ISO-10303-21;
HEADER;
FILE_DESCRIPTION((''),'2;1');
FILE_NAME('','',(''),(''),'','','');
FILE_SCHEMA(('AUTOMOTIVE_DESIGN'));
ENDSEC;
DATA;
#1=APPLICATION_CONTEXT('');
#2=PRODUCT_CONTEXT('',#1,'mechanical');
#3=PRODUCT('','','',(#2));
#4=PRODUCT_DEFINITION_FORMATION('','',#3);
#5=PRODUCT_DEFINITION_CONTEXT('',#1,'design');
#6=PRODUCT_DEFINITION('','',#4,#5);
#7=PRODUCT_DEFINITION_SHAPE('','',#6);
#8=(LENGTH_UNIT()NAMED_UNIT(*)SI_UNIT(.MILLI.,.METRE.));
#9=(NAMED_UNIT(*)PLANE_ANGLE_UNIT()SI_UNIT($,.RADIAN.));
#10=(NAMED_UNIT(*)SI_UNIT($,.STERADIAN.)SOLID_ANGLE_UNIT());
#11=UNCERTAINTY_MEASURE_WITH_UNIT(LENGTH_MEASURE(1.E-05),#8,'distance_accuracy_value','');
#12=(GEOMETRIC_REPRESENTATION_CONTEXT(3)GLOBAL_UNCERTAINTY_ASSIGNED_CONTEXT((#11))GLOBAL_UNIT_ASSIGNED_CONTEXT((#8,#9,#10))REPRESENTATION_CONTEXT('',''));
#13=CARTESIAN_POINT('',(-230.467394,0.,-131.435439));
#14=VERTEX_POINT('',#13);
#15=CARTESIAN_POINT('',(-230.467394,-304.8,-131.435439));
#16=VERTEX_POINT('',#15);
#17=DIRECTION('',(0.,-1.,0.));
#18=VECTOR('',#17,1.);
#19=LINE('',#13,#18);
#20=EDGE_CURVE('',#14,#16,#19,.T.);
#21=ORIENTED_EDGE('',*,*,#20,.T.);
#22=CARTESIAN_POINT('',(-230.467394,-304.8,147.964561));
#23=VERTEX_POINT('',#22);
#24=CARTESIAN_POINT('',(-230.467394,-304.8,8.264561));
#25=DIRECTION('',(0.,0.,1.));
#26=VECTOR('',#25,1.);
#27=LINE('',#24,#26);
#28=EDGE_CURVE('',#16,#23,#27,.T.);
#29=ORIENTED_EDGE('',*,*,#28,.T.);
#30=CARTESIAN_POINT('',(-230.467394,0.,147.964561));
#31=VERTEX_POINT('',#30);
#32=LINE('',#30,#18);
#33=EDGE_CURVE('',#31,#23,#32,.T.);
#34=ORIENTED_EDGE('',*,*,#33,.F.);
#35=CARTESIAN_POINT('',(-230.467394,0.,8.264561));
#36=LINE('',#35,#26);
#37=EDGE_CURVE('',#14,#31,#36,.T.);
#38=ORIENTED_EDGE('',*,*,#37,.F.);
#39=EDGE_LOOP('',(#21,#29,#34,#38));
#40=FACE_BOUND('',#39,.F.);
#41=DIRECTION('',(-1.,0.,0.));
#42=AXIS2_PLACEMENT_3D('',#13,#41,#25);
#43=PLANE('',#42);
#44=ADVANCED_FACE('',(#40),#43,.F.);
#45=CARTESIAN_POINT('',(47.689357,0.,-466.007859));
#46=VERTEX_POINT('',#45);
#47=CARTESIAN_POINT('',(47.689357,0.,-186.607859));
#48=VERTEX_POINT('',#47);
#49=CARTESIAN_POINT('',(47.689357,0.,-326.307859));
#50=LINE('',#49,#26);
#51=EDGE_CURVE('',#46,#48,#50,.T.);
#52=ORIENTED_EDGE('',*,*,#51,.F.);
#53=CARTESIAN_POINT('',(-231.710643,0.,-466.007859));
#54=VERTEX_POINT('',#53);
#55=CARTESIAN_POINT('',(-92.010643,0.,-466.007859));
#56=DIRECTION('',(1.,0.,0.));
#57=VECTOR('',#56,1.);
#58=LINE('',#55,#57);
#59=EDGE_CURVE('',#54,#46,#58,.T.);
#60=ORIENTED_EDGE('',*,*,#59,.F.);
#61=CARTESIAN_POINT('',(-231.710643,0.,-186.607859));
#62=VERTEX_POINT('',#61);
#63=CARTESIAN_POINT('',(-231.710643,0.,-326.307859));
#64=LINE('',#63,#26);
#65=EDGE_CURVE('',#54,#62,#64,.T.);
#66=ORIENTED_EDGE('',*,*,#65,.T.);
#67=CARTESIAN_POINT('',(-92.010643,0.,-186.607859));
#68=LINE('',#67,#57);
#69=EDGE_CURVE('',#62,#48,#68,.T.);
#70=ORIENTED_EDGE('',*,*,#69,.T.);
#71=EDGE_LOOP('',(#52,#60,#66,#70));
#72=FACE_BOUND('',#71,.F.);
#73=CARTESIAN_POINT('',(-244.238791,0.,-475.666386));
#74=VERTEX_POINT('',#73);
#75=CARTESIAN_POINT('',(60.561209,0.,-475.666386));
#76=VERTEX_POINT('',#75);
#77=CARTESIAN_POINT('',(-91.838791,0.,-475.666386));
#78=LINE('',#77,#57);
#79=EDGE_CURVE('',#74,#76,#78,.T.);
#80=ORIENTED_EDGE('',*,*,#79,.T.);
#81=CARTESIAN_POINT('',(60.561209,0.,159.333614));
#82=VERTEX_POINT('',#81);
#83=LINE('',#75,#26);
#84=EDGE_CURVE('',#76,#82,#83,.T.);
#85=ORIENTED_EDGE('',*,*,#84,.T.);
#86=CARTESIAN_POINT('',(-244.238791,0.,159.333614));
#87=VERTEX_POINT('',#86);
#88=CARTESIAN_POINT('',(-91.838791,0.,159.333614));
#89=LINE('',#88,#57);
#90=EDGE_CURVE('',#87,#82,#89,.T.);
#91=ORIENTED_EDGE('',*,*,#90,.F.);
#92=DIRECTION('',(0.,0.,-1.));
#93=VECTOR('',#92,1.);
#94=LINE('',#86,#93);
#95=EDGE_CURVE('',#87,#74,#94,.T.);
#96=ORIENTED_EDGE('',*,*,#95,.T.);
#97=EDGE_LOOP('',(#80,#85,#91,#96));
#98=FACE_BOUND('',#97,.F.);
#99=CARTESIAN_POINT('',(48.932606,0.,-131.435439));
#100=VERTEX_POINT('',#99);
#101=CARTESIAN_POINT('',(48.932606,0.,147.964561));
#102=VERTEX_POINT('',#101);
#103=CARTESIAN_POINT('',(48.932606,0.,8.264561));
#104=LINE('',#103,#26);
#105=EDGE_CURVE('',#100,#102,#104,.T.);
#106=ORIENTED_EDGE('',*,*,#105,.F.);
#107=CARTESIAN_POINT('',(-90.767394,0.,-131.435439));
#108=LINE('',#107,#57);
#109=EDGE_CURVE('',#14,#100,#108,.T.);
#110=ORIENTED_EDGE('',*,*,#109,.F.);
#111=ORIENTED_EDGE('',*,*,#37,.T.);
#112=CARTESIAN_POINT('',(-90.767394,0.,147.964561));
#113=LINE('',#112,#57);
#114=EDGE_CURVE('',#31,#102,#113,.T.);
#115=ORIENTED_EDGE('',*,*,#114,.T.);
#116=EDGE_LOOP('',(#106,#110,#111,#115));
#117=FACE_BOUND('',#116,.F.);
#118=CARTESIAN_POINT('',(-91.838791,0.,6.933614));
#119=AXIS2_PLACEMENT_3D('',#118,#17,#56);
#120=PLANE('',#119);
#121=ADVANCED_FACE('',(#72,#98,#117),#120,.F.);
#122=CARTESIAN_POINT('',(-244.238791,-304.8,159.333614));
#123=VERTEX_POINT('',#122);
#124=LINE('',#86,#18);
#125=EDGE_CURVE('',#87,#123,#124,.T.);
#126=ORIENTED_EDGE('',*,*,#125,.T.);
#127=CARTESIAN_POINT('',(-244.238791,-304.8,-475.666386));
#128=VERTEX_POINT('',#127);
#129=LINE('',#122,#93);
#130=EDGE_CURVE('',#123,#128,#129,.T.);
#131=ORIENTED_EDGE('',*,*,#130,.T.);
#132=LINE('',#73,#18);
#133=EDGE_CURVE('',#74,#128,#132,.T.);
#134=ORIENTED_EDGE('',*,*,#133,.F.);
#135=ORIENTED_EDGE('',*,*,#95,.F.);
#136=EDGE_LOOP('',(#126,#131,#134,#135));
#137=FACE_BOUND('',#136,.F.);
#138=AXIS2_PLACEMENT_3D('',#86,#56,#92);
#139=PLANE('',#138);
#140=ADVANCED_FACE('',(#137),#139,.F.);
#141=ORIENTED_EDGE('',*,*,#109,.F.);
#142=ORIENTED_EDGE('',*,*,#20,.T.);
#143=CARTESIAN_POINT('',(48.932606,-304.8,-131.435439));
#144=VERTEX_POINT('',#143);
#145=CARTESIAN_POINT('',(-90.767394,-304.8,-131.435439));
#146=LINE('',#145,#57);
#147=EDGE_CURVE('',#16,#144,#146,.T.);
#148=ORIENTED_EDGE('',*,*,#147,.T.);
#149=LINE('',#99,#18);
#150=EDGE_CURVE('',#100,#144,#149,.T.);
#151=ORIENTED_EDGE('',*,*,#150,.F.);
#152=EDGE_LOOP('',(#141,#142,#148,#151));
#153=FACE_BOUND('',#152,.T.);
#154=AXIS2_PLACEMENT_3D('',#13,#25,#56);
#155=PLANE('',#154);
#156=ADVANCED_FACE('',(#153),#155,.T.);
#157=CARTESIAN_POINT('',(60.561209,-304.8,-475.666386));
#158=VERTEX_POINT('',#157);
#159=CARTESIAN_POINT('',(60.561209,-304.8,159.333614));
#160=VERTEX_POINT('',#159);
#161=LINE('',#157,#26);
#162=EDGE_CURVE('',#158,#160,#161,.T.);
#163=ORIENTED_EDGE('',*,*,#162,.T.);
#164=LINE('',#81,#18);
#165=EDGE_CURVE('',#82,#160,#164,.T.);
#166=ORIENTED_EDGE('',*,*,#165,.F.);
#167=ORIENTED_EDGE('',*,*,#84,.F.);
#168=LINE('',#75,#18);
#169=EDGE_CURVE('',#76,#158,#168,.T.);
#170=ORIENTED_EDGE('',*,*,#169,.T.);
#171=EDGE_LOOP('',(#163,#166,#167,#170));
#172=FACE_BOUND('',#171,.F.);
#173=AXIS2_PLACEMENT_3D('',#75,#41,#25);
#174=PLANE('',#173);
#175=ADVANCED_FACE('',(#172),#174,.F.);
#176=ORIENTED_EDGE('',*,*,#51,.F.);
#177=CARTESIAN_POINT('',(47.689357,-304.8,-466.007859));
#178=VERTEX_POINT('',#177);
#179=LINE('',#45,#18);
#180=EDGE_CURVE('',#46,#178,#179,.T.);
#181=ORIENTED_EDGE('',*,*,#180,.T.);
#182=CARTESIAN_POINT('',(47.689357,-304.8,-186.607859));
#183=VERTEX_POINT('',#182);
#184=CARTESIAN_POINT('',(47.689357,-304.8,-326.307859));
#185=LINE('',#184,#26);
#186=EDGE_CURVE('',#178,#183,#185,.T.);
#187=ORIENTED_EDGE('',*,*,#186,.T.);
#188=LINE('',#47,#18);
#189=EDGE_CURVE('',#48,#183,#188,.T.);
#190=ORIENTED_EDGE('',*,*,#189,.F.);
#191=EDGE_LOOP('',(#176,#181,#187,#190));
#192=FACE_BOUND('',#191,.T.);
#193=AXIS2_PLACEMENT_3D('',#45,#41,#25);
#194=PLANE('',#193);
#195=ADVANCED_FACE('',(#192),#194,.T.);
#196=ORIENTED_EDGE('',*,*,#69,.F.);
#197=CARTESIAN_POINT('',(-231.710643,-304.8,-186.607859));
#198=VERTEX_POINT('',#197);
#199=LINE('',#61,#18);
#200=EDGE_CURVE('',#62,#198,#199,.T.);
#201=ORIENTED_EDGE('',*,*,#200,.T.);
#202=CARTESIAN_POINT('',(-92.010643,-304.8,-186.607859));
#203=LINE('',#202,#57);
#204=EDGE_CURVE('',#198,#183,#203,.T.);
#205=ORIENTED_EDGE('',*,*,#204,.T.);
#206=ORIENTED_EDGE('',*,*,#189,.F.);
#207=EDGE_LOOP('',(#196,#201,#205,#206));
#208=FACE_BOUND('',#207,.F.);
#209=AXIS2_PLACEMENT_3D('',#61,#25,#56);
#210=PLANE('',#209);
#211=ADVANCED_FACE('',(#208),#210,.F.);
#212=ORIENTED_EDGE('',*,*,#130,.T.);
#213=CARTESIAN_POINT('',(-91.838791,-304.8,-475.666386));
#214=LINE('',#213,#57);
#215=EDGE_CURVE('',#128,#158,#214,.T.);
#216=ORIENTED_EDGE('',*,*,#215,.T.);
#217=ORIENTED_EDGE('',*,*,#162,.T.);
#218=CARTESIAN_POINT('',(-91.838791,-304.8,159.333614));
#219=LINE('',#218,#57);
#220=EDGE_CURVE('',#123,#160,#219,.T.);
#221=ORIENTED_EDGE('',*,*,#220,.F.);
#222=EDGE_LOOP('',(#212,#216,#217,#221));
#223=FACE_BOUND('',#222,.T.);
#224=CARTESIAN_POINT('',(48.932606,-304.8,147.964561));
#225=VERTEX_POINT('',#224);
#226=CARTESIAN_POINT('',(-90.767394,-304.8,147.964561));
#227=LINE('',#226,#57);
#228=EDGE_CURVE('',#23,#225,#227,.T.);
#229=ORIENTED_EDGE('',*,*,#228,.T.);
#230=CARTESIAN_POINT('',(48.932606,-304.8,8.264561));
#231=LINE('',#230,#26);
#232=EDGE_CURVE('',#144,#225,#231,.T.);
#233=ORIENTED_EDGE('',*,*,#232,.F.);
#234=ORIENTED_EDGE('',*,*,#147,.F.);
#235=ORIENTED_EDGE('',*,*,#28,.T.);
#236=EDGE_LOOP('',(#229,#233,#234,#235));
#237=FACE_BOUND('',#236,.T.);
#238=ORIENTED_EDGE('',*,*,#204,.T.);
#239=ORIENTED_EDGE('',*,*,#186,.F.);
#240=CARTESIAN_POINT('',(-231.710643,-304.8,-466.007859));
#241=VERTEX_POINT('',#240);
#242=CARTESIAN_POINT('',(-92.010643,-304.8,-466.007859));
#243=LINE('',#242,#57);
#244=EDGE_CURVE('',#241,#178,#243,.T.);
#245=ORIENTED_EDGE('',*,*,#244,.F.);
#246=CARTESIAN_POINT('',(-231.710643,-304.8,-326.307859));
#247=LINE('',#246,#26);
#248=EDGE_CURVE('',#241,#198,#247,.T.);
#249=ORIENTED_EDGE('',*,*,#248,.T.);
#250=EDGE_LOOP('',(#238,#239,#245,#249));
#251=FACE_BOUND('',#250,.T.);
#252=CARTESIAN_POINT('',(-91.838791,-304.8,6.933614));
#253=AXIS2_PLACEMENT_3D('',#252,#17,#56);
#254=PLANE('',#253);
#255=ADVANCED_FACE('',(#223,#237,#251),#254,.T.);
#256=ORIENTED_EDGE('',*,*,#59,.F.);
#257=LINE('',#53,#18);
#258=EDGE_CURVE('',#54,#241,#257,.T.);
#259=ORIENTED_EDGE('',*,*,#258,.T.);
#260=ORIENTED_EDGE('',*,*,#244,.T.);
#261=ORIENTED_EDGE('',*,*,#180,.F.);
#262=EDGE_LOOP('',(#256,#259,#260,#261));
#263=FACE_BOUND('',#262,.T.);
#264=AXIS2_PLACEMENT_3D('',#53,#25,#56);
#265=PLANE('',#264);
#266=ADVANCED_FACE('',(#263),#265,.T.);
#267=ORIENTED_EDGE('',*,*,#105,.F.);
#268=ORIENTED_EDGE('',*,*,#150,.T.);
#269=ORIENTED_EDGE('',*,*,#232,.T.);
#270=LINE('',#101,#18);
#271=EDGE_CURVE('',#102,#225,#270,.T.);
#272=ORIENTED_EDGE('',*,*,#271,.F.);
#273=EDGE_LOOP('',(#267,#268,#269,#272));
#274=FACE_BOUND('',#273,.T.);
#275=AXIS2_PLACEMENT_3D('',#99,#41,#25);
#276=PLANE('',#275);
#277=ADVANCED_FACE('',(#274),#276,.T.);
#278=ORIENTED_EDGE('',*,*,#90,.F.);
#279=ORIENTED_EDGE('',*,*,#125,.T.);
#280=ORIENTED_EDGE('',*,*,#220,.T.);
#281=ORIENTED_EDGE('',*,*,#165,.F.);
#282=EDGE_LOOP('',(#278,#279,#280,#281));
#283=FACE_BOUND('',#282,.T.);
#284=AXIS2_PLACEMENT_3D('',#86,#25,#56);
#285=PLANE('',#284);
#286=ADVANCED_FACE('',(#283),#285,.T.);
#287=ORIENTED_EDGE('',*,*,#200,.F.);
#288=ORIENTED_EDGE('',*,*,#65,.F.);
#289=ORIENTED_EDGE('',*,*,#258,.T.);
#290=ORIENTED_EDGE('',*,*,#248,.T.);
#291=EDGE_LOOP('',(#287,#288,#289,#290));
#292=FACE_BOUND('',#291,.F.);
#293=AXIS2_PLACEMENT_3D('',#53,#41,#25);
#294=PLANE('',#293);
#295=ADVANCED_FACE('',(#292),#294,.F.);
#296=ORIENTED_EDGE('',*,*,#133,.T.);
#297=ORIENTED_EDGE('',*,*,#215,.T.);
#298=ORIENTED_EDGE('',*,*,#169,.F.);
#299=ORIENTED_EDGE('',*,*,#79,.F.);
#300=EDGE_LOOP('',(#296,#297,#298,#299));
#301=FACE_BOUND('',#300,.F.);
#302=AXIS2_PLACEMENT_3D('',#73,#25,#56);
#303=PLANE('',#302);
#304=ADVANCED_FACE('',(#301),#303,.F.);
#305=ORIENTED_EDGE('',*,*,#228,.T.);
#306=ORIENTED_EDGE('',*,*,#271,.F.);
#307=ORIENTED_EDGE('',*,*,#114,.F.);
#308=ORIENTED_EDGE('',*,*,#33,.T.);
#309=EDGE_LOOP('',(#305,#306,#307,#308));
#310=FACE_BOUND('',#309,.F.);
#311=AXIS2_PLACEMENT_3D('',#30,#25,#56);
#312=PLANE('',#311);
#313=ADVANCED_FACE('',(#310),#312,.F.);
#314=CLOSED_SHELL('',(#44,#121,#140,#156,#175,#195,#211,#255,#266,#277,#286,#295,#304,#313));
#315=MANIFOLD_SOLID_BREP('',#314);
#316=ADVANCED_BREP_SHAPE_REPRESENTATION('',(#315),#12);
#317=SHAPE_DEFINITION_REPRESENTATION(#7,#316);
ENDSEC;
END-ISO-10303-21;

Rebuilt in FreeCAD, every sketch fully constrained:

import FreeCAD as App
import Part
import Sketcher
from FreeCAD import Vector
Q = App.Units.Quantity

doc = App.newDocument("Part")
body = doc.addObject("PartDesign::Body", "Body")

# Sketch on XZ plane
sketch1 = body.newObject("Sketcher::SketchObject", "Sketch")
sketch1.AttachmentSupport = (doc.getObject("XZ_Plane"), [""])
sketch1.MapMode = "FlatFace"
sketch1.addGeometry([
    Part.LineSegment(Vector(-244, 159, 0), Vector(-244, -476, 0)),  # 0
    Part.LineSegment(Vector(-244, -476, 0), Vector(61, -476, 0)),  # 1
    Part.LineSegment(Vector(61, -476, 0), Vector(61, 159, 0)),  # 2
    Part.LineSegment(Vector(61, 159, 0), Vector(-244, 159, 0)),  # 3
    Part.LineSegment(Vector(48, -466, 0), Vector(-232, -466, 0)),  # 4
    Part.LineSegment(Vector(-232, -466, 0), Vector(-232, -187, 0)),  # 5
    Part.LineSegment(Vector(-232, -187, 0), Vector(48, -187, 0)),  # 6
    Part.LineSegment(Vector(48, -187, 0), Vector(48, -466, 0)),  # 7
    Part.LineSegment(Vector(49, -131, 0), Vector(-230, -131, 0)),  # 8
    Part.LineSegment(Vector(-230, -131, 0), Vector(-230, 148, 0)),  # 9
    Part.LineSegment(Vector(-230, 148, 0), Vector(49, 148, 0)),  # 10
    Part.LineSegment(Vector(49, 148, 0), Vector(49, -131, 0)),  # 11
], False)
sketch1.addConstraint([
    Sketcher.Constraint("Coincident", 0, 2, 1, 1),
    Sketcher.Constraint("Coincident", 1, 2, 2, 1),
    Sketcher.Constraint("Coincident", 2, 2, 3, 1),
    Sketcher.Constraint("Coincident", 3, 2, 0, 1),
    Sketcher.Constraint("Coincident", 4, 2, 5, 1),
    Sketcher.Constraint("Coincident", 5, 2, 6, 1),
    Sketcher.Constraint("Coincident", 6, 2, 7, 1),
    Sketcher.Constraint("Coincident", 7, 2, 4, 1),
    Sketcher.Constraint("Coincident", 8, 2, 9, 1),
    Sketcher.Constraint("Coincident", 9, 2, 10, 1),
    Sketcher.Constraint("Coincident", 10, 2, 11, 1),
    Sketcher.Constraint("Coincident", 11, 2, 8, 1),
    Sketcher.Constraint("Vertical", 0),
    Sketcher.Constraint("Horizontal", 1),
    Sketcher.Constraint("Vertical", 2),
    Sketcher.Constraint("Horizontal", 3),
    Sketcher.Constraint("Horizontal", 4),
    Sketcher.Constraint("Vertical", 5),
    Sketcher.Constraint("Horizontal", 6),
    Sketcher.Constraint("Vertical", 7),
    Sketcher.Constraint("Horizontal", 8),
    Sketcher.Constraint("Vertical", 9),
    Sketcher.Constraint("Horizontal", 10),
    Sketcher.Constraint("Vertical", 11),
    Sketcher.Constraint("Equal", 6, 8),
    Sketcher.Constraint("Equal", 10, 5),
    Sketcher.Constraint("Equal", 7, 9),
    Sketcher.Constraint("DistanceX", 1, 1, 1, 2, Q("12 in")),
    Sketcher.Constraint("DistanceX", 4, 2, 4, 1, Q("11 in")),
    Sketcher.Constraint("DistanceY", 0, 2, 0, 1, Q("25 in")),
    Sketcher.Constraint("DistanceX", 0, 2, -1, 1, Q("244.238791 mm")),
    Sketcher.Constraint("DistanceY", 4, 2, -1, 1, Q("466.007859 mm")),
    Sketcher.Constraint("DistanceY", 8, 2, -1, 1, Q("131.435439 mm")),
    Sketcher.Constraint("DistanceX", 6, 2, 1, 2, Q("12.871852 mm")),
    Sketcher.Constraint("DistanceX", 5, 2, 8, 2, Q("1.243249 mm")),
    Sketcher.Constraint("DistanceY", 0, 2, -1, 1, Q("475.666386 mm")),
])
pad1 = body.newObject("PartDesign::Pad", "Pad")
pad1.Profile = sketch1
pad1.Length = Q("12 in")

doc.recompute()
